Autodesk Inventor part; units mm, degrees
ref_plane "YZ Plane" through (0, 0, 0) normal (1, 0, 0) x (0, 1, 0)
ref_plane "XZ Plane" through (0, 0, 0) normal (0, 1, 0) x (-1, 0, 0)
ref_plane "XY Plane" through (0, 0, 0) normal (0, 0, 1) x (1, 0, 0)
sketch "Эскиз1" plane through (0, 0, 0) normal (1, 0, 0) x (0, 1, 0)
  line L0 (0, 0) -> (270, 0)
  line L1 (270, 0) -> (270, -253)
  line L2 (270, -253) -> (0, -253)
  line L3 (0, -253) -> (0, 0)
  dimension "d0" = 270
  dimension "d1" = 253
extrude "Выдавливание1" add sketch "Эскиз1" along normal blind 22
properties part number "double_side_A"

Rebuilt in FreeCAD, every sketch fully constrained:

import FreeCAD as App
import Part
import Sketcher

doc = App.newDocument("Part")
body = doc.addObject("PartDesign::Body", "Body")

# Sketch on YZ plane
sketch1 = body.newObject("Sketcher::SketchObject", "Sketch")
sketch1.AttachmentSupport = (doc.getObject("YZ_Plane"), [""])
sketch1.MapMode = "FlatFace"
sketch1.addGeometry([
    Part.LineSegment(App.Vector(270, 0, 0), App.Vector(0, 0, 0)),
    Part.LineSegment(App.Vector(0, 0, 0), App.Vector(0, -253, 0)),
    Part.LineSegment(App.Vector(0, -253, 0), App.Vector(270, -253, 0)),
    Part.LineSegment(App.Vector(270, -253, 0), App.Vector(270, 0, 0)),
], False)
sketch1.addConstraint([
    Sketcher.Constraint("Coincident", 0, 2, 1, 1),
    Sketcher.Constraint("Coincident", 1, 2, 2, 1),
    Sketcher.Constraint("Coincident", 2, 2, 3, 1),
    Sketcher.Constraint("Coincident", 3, 2, 0, 1),
    Sketcher.Constraint("Horizontal", 0),
    Sketcher.Constraint("Vertical", 1),
    Sketcher.Constraint("Horizontal", 2),
    Sketcher.Constraint("Vertical", 3),
    Sketcher.Constraint("Coincident", 0, 2, -1, 1),
    Sketcher.Constraint("DistanceX", 0, 2, 0, 1, 270.0),
    Sketcher.Constraint("DistanceY", 1, 2, 1, 1, 253.0),
])
pad1 = body.newObject("PartDesign::Pad", "Pad")
pad1.Profile = sketch1
pad1.Length = 22

doc.recompute()
